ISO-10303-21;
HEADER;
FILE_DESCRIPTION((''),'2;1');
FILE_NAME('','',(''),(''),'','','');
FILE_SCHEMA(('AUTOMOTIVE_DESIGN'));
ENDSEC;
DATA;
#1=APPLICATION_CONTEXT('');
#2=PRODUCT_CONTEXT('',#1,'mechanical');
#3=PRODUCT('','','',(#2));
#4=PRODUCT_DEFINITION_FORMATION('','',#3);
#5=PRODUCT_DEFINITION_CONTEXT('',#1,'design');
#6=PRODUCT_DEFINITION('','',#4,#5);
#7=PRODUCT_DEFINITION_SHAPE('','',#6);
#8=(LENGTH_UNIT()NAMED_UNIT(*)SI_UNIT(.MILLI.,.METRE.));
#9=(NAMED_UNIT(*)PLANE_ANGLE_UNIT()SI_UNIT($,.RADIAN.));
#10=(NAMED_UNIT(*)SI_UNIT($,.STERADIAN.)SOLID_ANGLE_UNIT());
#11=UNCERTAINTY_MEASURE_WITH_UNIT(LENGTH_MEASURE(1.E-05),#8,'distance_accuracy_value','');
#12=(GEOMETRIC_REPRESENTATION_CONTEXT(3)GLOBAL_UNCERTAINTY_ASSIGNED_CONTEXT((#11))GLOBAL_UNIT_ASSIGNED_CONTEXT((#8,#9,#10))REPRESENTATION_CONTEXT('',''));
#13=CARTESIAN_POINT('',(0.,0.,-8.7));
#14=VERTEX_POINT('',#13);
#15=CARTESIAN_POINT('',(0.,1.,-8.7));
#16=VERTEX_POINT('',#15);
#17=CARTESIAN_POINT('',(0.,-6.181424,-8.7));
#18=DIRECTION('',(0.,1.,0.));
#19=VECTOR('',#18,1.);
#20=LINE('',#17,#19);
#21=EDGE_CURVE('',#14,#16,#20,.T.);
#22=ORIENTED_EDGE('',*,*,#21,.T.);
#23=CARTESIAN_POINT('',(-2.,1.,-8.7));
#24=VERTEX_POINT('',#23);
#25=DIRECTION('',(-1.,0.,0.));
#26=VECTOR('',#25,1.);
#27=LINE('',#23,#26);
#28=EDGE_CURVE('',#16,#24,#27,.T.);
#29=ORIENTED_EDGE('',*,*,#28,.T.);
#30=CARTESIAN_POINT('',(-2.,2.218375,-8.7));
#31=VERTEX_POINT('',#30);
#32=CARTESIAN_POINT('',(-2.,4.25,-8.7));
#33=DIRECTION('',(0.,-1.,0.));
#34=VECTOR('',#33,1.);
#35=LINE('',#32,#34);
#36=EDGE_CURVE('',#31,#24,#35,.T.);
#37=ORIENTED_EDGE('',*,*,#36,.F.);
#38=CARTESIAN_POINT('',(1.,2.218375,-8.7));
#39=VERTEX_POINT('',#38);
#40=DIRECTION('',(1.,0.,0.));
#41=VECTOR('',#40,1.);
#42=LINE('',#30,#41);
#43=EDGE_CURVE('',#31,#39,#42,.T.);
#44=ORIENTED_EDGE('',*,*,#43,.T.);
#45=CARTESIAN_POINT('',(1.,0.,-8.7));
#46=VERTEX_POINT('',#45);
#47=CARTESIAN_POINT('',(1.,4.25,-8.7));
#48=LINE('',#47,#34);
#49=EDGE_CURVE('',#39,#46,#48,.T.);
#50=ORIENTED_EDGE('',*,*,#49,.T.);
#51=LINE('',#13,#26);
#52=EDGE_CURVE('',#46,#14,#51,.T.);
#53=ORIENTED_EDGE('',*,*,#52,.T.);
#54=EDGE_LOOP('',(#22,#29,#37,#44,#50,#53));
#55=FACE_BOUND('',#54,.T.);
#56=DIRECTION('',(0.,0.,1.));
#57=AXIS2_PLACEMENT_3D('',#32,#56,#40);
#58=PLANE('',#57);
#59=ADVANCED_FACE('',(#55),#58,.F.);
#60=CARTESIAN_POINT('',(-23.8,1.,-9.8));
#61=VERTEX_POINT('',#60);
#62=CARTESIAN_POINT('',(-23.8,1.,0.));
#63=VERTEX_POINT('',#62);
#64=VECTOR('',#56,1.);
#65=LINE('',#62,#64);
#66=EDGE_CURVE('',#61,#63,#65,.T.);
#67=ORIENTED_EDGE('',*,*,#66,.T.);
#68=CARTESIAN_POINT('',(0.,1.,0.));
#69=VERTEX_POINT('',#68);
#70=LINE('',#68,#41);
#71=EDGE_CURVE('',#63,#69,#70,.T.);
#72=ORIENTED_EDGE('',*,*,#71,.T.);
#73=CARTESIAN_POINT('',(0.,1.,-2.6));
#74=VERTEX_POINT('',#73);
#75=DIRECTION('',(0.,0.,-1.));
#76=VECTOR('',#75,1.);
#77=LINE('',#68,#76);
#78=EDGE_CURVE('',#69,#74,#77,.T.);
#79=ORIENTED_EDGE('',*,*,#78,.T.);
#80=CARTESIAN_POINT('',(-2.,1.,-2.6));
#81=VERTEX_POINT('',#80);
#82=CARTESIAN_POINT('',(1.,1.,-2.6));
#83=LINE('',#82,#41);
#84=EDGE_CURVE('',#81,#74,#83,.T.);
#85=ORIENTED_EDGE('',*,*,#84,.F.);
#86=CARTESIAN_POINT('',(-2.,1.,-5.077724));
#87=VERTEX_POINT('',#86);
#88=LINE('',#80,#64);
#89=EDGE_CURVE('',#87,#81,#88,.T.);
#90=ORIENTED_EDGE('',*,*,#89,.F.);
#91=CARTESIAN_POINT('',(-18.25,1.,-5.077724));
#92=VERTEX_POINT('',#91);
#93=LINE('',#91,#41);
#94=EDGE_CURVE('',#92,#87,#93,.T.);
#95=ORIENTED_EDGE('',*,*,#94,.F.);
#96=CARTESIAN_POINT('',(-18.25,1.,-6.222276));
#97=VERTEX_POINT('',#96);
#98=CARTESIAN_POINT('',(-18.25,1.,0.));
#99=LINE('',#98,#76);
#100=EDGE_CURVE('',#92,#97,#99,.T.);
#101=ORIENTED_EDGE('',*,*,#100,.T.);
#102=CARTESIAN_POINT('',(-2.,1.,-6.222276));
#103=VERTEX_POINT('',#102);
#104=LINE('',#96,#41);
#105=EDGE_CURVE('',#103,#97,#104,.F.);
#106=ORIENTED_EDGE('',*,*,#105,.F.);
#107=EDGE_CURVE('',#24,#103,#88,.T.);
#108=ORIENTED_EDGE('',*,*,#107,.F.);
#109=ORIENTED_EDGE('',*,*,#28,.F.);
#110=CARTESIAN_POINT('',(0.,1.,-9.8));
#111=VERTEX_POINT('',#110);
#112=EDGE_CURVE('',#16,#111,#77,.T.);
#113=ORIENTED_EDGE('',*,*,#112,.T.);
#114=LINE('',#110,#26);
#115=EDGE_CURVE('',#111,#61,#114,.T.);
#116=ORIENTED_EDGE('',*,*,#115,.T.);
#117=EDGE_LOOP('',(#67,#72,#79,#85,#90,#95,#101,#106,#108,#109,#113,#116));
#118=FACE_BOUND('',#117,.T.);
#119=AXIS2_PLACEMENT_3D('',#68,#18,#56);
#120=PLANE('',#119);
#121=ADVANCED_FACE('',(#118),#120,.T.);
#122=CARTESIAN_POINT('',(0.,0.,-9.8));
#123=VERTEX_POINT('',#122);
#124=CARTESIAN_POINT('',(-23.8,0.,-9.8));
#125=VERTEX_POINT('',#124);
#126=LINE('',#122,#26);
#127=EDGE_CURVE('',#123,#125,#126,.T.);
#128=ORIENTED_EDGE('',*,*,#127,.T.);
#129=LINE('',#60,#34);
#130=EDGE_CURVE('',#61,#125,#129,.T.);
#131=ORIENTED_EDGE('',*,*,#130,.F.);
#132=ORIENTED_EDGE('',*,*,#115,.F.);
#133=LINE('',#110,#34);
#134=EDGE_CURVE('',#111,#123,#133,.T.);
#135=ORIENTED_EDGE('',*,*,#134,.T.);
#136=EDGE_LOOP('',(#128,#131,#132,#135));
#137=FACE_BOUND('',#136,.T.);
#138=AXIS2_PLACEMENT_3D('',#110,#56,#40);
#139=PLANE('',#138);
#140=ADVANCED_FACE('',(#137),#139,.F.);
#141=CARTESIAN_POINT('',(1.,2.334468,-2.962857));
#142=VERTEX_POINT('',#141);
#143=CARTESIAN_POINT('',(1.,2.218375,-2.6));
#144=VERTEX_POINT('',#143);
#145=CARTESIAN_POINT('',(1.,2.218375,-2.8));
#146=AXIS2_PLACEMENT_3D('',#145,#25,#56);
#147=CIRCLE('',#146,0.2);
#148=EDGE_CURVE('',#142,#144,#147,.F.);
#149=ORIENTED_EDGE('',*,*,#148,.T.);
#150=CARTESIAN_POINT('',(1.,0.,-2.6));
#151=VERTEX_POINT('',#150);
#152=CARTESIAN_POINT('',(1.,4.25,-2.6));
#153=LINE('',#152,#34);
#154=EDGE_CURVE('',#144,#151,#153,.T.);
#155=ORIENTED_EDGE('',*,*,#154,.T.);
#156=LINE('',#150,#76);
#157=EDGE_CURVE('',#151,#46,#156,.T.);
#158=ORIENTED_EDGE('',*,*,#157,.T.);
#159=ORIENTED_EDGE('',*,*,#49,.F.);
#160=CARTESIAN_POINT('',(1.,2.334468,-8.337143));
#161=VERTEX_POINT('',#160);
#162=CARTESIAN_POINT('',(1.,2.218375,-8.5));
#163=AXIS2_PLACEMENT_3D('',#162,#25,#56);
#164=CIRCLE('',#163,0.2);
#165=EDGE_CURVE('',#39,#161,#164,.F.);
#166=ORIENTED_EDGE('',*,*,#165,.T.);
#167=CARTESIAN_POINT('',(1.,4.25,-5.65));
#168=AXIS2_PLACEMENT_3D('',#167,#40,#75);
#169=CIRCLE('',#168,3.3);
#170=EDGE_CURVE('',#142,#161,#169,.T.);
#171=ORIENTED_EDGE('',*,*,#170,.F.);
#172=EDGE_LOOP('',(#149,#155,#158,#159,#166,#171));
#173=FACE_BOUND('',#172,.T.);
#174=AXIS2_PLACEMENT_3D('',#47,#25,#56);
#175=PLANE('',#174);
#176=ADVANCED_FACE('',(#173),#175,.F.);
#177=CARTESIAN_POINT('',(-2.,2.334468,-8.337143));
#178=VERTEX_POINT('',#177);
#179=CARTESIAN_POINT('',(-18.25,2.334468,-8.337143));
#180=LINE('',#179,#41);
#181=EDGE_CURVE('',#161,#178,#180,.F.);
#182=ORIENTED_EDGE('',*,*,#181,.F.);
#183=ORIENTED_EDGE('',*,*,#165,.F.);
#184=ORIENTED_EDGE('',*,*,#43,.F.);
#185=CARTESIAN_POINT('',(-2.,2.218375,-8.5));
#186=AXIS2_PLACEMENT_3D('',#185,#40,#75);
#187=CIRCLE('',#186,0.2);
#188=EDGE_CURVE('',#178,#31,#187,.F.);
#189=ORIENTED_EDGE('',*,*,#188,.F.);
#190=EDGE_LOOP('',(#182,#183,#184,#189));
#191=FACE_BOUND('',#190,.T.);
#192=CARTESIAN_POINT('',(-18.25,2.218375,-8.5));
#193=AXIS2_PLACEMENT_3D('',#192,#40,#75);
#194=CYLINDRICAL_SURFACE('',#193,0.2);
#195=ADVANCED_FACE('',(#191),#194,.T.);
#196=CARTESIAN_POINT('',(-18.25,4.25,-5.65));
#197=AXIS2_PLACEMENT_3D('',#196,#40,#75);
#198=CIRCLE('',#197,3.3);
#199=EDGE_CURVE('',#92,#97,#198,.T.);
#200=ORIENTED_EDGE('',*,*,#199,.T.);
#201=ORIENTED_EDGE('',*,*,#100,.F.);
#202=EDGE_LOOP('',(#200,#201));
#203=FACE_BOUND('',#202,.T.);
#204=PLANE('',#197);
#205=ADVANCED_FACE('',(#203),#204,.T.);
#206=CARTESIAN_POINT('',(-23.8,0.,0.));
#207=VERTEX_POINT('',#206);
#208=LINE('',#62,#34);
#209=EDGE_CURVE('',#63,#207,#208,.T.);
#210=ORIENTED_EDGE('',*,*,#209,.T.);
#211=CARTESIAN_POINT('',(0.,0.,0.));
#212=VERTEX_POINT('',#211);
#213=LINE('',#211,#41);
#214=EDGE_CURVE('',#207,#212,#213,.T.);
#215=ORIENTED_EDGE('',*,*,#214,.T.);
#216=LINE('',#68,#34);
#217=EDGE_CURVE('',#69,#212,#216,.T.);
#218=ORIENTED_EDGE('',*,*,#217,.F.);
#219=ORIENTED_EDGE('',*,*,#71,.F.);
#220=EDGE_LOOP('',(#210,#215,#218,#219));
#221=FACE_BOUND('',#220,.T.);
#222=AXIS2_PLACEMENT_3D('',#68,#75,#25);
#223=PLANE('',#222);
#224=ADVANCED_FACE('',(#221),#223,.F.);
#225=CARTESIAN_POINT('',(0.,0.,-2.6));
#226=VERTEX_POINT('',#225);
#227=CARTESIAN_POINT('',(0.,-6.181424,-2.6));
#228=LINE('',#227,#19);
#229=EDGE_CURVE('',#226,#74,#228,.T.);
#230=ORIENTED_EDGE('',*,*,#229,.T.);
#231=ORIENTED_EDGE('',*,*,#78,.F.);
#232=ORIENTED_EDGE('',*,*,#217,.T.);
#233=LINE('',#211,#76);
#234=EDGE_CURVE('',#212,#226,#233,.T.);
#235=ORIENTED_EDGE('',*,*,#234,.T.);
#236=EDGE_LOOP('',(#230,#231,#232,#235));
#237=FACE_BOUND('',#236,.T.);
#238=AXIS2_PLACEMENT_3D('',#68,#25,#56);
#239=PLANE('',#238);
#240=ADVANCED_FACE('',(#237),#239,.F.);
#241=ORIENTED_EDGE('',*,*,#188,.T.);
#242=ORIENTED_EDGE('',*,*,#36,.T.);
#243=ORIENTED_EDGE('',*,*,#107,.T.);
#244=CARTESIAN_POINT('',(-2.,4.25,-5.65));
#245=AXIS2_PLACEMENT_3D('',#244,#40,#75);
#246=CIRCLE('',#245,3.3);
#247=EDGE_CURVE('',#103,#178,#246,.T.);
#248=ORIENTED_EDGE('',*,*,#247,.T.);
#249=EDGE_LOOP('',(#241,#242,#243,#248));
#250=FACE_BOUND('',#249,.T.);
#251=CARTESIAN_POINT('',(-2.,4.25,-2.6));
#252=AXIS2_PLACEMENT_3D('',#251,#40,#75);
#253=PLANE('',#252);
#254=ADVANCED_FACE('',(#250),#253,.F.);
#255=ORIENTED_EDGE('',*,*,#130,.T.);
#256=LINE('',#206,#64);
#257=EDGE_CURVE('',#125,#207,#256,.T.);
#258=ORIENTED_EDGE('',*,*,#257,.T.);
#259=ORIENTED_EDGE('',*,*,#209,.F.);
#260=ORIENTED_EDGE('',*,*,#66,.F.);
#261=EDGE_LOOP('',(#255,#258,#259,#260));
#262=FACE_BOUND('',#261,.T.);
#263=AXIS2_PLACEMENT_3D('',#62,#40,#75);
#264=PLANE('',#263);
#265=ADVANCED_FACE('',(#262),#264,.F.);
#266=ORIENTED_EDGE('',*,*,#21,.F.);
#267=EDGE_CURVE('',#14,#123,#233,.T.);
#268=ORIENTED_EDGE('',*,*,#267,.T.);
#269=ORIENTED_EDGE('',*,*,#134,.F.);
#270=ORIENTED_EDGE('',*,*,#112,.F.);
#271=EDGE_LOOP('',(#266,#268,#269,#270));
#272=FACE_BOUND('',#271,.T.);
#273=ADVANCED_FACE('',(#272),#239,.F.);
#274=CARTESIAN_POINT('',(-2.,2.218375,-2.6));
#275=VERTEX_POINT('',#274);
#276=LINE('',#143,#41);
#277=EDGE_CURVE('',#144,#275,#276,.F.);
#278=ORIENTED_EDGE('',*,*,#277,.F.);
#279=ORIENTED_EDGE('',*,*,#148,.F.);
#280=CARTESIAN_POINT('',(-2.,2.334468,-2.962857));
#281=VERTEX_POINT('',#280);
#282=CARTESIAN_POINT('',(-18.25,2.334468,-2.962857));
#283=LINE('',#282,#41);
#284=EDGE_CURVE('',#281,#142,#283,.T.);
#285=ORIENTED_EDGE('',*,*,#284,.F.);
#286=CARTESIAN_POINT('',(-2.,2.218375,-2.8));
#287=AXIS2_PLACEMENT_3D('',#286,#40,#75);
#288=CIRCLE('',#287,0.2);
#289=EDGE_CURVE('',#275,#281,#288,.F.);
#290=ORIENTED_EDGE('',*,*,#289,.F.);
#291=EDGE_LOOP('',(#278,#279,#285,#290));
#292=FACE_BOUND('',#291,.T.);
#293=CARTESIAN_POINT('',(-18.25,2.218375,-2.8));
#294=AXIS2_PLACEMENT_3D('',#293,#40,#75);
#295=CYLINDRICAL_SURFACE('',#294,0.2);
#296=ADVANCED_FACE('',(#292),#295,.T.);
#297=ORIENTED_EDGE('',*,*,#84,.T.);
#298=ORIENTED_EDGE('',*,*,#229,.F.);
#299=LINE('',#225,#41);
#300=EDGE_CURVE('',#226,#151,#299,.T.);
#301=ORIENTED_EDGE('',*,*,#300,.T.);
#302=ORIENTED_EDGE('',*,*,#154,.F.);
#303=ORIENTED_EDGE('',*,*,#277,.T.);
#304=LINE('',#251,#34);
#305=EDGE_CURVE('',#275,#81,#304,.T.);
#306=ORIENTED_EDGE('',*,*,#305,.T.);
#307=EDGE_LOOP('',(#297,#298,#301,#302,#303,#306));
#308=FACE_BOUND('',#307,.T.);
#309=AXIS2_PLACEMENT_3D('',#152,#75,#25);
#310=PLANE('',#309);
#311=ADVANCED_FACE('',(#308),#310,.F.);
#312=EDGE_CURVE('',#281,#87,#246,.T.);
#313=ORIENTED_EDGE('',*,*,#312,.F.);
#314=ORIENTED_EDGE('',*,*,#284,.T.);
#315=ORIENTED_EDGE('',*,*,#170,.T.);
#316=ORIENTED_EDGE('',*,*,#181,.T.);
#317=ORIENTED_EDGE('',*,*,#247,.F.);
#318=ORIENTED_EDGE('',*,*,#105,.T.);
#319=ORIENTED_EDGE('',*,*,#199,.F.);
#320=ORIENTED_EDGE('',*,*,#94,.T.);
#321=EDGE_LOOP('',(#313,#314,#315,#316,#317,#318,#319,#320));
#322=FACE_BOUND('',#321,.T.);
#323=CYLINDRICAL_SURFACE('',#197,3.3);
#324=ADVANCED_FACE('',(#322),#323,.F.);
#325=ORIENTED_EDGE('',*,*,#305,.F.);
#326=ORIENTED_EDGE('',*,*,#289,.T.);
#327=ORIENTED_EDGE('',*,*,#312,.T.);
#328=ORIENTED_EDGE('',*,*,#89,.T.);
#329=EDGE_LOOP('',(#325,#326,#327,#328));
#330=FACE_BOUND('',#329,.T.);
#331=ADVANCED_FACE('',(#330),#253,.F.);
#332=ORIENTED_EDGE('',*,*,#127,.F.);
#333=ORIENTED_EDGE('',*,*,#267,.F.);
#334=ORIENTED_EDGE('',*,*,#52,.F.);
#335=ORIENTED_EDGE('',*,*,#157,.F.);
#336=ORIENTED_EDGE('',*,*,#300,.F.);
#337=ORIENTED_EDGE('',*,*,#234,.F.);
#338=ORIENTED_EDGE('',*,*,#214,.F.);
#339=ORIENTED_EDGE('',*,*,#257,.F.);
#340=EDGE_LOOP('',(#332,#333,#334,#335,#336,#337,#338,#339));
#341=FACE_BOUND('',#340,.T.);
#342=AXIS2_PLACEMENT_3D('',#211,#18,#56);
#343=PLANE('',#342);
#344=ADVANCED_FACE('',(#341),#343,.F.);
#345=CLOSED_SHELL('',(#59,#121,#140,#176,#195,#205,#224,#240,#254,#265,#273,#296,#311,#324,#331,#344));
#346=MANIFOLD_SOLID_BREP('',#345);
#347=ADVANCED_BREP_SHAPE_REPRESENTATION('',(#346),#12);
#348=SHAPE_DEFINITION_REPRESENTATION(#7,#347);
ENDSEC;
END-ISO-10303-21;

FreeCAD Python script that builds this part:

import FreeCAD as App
import Part
import Sketcher
from FreeCAD import Vector
Q = App.Units.Quantity


def edges_at(feature, points):
    """Names of the edges that pass closest to the given points."""
    edges = feature.Shape.Edges
    near = lambda p: min(range(len(edges)), key=lambda i: edges[i].distToShape(Part.Vertex(*p))[0])
    return sorted({f"Edge{near(p) + 1}" for p in points})

doc = App.newDocument("Part")
body = doc.addObject("PartDesign::Body", "Body")

# Sketch on XZ plane
sketch1 = body.newObject("Sketcher::SketchObject", "Sketch")
sketch1.AttachmentSupport = (doc.getObject("XZ_Plane"), [""])
sketch1.MapMode = "FlatFace"
sketch1.addGeometry(Part.LineSegment(Vector(-24, -10, 0), Vector(-24, 0, 0)), False)
sketch1.addGeometry(Part.LineSegment(Vector(-24, 0, 0), Vector(0, 0, 0)), False)
sketch1.addGeometry(Part.LineSegment(Vector(0, 0, 0), Vector(0, -10, 0)), False)
sketch1.addGeometry(Part.LineSegment(Vector(0, -10, 0), Vector(-24, -10, 0)), False)
sketch1.addConstraint(Sketcher.Constraint("Coincident", 0, 2, 1, 1))
sketch1.addConstraint(Sketcher.Constraint("Coincident", 1, 2, 2, 1))
sketch1.addConstraint(Sketcher.Constraint("Coincident", 2, 2, 3, 1))
sketch1.addConstraint(Sketcher.Constraint("Coincident", 3, 2, 0, 1))
sketch1.addConstraint(Sketcher.Constraint("Vertical", 0))
sketch1.addConstraint(Sketcher.Constraint("Horizontal", 1))
sketch1.addConstraint(Sketcher.Constraint("Vertical", 2))
sketch1.addConstraint(Sketcher.Constraint("Horizontal", 3))
sketch1.addConstraint(Sketcher.Constraint("Coincident", 1, 2, -1, 1))
sketch1.addConstraint(Sketcher.Constraint("DistanceX", 1, 1, 1, 2, Q("23.8 mm")))
sketch1.addConstraint(Sketcher.Constraint("DistanceY", 0, 1, 0, 2, Q("9.8 mm")))
pad1 = body.newObject("PartDesign::Pad", "Pad")
pad1.Profile = sketch1
pad1.Length = 1
pad1.Reversed = True

# Sketch on XZ plane
sketch2 = body.newObject("Sketcher::SketchObject", "Sketch001")
sketch2.AttachmentSupport = (doc.getObject("XZ_Plane"), [""])
sketch2.MapMode = "FlatFace"
sketch2.AttachmentOffset = App.Placement(Vector(0, 0, -1), App.Rotation())
sketch2.addGeometry(Part.LineSegment(Vector(-2, -8.7, 0), Vector(-2, -2.6, 0)), False)
sketch2.addGeometry(Part.LineSegment(Vector(-2, -2.6, 0), Vector(1, -2.6, 0)), False)
sketch2.addGeometry(Part.LineSegment(Vector(1, -2.6, 0), Vector(1, -8.7, 0)), False)
sketch2.addGeometry(Part.LineSegment(Vector(1, -8.7, 0), Vector(-2, -8.7, 0)), False)
sketch2.addConstraint(Sketcher.Constraint("Coincident", 0, 2, 1, 1))
sketch2.addConstraint(Sketcher.Constraint("Coincident", 1, 2, 2, 1))
sketch2.addConstraint(Sketcher.Constraint("Coincident", 2, 2, 3, 1))
sketch2.addConstraint(Sketcher.Constraint("Coincident", 3, 2, 0, 1))
sketch2.addConstraint(Sketcher.Constraint("Vertical", 0))
sketch2.addConstraint(Sketcher.Constraint("Horizontal", 1))
sketch2.addConstraint(Sketcher.Constraint("Vertical", 2))
sketch2.addConstraint(Sketcher.Constraint("Horizontal", 3))
sketch2.addConstraint(Sketcher.Constraint("DistanceX", 1, 1, 1, 2, Q("3 mm")))
sketch2.addConstraint(Sketcher.Constraint("DistanceY", 0, 1, 0, 2, Q("6.1 mm")))
sketch2.addConstraint(Sketcher.Constraint("DistanceX", 0, 2, -1, 1, Q("2 mm")))
sketch2.addConstraint(Sketcher.Constraint("DistanceY", 0, 2, -1, 1, Q("2.6 mm")))
pad2 = body.newObject("PartDesign::Pad", "Pad001")
pad2.Profile = sketch2
pad2.Length = 3.25
pad2.Reversed = True

# Sketch on XZ plane
sketch3 = body.newObject("Sketcher::SketchObject", "Sketch002")
sketch3.AttachmentSupport = (doc.getObject("XZ_Plane"), [""])
sketch3.MapMode = "FlatFace"
sketch3.AttachmentOffset = App.Placement(Vector(0, 0, -1), App.Rotation())
sketch3.addGeometry(Part.LineSegment(Vector(0, -2.6, 0), Vector(0, -8.7, 0)), False)
sketch3.addGeometry(Part.LineSegment(Vector(0, -8.7, 0), Vector(1, -8.7, 0)), False)
sketch3.addGeometry(Part.LineSegment(Vector(1, -8.7, 0), Vector(1, -2.6, 0)), False)
sketch3.addGeometry(Part.LineSegment(Vector(1, -2.6, 0), Vector(0, -2.6, 0)), False)
sketch3.addConstraint(Sketcher.Constraint("Coincident", 0, 2, 1, 1))
sketch3.addConstraint(Sketcher.Constraint("Coincident", 1, 2, 2, 1))
sketch3.addConstraint(Sketcher.Constraint("Coincident", 2, 2, 3, 1))
sketch3.addConstraint(Sketcher.Constraint("Coincident", 3, 2, 0, 1))
sketch3.addConstraint(Sketcher.Constraint("Vertical", 0))
sketch3.addConstraint(Sketcher.Constraint("Horizontal", 1))
sketch3.addConstraint(Sketcher.Constraint("Vertical", 2))
sketch3.addConstraint(Sketcher.Constraint("Horizontal", 3))
sketch3.addConstraint(Sketcher.Constraint("PointOnObject", 0, 2, -2))
sketch3.addConstraint(Sketcher.Constraint("DistanceX", 1, 1, 1, 2, Q("1 mm")))
sketch3.addConstraint(Sketcher.Constraint("DistanceY", 0, 2, 0, 1, Q("6.1 mm")))
sketch3.addConstraint(Sketcher.Constraint("DistanceY", 0, 2, -1, 1, Q("8.7 mm")))
pad3 = body.newObject("PartDesign::Pad", "Pad002")
pad3.Profile = sketch3
pad3.Length = 1

# Sketch on YZ plane
sketch4 = body.newObject("Sketcher::SketchObject", "Sketch003")
sketch4.AttachmentSupport = (doc.getObject("YZ_Plane"), [""])
sketch4.MapMode = "FlatFace"
sketch4.AttachmentOffset = App.Placement(Vector(0, 0, 1), App.Rotation())
sketch4.addGeometry(Part.Circle(Vector(4.2, -5.7, 0), Vector(0, 0, 1), 3.3), False)
sketch4.addConstraint(Sketcher.Constraint("Diameter", 0, Q("6.6 mm")))
sketch4.addConstraint(Sketcher.Constraint("DistanceX", -1, 1, 0, 3, Q("4.25 mm")))
sketch4.addConstraint(Sketcher.Constraint("DistanceY", 0, 3, -1, 1, Q("5.65 mm")))
pocket1 = body.newObject("PartDesign::Pocket", "Pocket")
pocket1.Profile = sketch4
pocket1.Length = 19.25
doc.recompute()

fillet = body.newObject("PartDesign::Fillet", "Fillet")
fillet.Base = (pocket1, edges_at(pocket1, [(-0.5, 2.99, -2.6), (-0.5, 2.99, -8.7)]))
fillet.Radius = 0.2

doc.recompute()
